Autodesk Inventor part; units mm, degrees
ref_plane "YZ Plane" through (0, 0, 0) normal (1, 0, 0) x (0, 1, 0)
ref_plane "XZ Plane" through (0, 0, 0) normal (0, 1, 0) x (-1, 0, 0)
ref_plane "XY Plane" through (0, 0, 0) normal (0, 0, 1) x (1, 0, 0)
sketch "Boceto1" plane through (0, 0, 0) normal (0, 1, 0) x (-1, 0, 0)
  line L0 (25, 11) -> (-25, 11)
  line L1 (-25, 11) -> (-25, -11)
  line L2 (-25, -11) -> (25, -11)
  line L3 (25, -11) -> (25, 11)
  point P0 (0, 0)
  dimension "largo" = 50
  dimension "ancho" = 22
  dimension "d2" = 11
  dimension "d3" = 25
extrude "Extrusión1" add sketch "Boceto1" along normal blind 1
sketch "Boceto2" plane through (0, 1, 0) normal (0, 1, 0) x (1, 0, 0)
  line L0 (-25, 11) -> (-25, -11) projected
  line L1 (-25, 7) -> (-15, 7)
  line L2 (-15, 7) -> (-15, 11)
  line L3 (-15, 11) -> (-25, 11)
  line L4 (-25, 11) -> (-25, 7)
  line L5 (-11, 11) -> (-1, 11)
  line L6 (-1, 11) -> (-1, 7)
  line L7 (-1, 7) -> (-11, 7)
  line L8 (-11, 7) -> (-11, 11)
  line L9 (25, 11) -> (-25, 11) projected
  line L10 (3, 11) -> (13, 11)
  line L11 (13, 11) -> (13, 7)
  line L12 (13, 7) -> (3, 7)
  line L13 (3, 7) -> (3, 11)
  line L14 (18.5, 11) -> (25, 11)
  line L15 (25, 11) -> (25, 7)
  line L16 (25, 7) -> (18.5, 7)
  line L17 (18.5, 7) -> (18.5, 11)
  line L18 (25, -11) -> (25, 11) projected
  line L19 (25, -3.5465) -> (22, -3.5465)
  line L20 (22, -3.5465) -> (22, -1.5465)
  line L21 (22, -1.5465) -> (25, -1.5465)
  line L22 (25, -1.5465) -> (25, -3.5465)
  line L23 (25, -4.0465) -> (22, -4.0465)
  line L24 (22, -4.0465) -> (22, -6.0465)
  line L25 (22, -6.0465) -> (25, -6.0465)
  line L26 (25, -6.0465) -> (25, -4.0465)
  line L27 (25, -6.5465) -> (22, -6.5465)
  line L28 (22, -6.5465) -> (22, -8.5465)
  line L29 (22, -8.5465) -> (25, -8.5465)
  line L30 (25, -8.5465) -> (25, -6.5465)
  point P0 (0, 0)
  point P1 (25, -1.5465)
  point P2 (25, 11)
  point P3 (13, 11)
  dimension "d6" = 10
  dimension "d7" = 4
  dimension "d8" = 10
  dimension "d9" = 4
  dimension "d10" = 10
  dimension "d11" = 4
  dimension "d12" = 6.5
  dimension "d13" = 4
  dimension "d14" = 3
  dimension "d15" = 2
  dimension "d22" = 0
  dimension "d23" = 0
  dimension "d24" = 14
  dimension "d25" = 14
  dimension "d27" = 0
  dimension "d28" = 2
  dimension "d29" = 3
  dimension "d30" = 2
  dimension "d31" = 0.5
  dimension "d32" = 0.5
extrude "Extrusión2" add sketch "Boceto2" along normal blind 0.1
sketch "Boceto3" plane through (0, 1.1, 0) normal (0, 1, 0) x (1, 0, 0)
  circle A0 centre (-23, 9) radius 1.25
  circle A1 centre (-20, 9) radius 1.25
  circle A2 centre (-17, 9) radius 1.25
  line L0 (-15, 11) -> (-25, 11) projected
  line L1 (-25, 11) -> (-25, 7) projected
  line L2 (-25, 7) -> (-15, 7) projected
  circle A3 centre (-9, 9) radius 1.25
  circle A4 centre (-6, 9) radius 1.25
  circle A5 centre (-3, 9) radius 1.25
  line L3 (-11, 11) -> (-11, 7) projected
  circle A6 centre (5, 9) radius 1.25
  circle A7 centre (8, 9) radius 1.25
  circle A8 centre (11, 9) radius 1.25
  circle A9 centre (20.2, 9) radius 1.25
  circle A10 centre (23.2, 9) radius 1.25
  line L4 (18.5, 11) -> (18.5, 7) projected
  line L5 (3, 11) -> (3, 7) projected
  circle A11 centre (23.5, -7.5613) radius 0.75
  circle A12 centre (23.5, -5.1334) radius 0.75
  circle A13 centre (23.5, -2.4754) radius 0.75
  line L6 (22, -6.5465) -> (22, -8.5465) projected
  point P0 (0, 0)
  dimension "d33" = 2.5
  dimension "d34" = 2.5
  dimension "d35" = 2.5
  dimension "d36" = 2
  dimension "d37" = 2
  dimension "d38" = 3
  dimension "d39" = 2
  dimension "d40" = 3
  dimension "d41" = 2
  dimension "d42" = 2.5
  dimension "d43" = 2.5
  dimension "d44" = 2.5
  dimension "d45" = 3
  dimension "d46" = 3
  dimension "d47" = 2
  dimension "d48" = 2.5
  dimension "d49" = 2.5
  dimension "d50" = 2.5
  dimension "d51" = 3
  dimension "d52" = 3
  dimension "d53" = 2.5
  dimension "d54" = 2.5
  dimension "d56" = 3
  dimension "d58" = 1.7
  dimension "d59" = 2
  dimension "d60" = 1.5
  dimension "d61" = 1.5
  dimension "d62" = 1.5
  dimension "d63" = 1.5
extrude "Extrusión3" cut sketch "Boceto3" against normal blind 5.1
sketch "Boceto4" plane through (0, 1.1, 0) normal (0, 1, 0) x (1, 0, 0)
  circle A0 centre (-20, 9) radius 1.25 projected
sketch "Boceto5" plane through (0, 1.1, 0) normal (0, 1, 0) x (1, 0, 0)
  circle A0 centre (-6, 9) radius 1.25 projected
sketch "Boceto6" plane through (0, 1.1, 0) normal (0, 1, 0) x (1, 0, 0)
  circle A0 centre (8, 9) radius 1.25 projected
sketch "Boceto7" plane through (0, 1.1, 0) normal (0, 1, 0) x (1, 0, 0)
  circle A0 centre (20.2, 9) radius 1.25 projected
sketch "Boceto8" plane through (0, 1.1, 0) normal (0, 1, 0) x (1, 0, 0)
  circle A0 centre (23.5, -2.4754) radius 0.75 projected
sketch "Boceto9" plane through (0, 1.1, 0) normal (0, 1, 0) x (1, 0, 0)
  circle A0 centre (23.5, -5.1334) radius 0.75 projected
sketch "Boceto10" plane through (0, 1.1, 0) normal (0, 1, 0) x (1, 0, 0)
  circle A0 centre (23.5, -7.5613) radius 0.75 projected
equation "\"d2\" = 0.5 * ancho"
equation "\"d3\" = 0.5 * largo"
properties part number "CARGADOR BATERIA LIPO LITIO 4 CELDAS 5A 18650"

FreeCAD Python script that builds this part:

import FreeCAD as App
import Part
import Sketcher
Q = App.Units.Quantity

doc = App.newDocument("Part")
params = doc.addObject("Spreadsheet::Sheet", "Params")
for row, (alias, value) in enumerate([
    ("sketch1_width", "50 mm"),
    ("sketch1_height", "22 mm"),
    ("pad1_length", "1 mm"),
    ("sketch2_width", "10 mm"),
    ("sketch2_width2", "3 mm"),
    ("sketch2_height", "4 mm"),
    ("sketch2_height2", "2 mm"),
    ("sketch2_width3", "6.5 mm"),
    ("pad2_length", "0.1 mm"),
    ("sketch3_diameter", "2.5 mm"),
    ("sketch3_diameter2", "1.5 mm"),
    ("pocket1_length", "5.1 mm"),
], start=1):
    params.set(f"A{row}", alias)
    params.set(f"B{row}", "=" + value)
    params.setAlias(f"B{row}", alias)

body = doc.addObject("PartDesign::Body", "Body")

# Sketch on XZ plane
sketch1 = body.newObject("Sketcher::SketchObject", "Sketch")
sketch1.AttachmentSupport = (doc.getObject("XZ_Plane"), [""])
sketch1.MapMode = "FlatFace"
sketch1.addGeometry([
    Part.LineSegment(App.Vector(-25, -11, 0), App.Vector(-25, 11, 0)),
    Part.LineSegment(App.Vector(-25, 11, 0), App.Vector(25, 11, 0)),
    Part.LineSegment(App.Vector(25, 11, 0), App.Vector(25, -11, 0)),
    Part.LineSegment(App.Vector(25, -11, 0), App.Vector(-25, -11, 0)),
], False)
sketch1.addConstraint([
    Sketcher.Constraint("Coincident", 0, 2, 1, 1),
    Sketcher.Constraint("Coincident", 1, 2, 2, 1),
    Sketcher.Constraint("Coincident", 2, 2, 3, 1),
    Sketcher.Constraint("Coincident", 3, 2, 0, 1),
    Sketcher.Constraint("Vertical", 0),
    Sketcher.Constraint("Horizontal", 1),
    Sketcher.Constraint("Vertical", 2),
    Sketcher.Constraint("Horizontal", 3),
    Sketcher.Constraint("Symmetric", 0, 2, 2, 2, -1, 1),
    Sketcher.Constraint("DistanceX", 1, 1, 1, 2, Q("50 mm")),
    Sketcher.Constraint("DistanceY", 0, 1, 0, 2, Q("22 mm")),
])
sketch1.setExpression("Constraints[9]", "Params.sketch1_width")
sketch1.setExpression("Constraints[10]", "Params.sketch1_height")
pad1 = body.newObject("PartDesign::Pad", "Pad")
pad1.Profile = sketch1
pad1.setExpression("Length", "Params.pad1_length")
pad1.Reversed = True

# Sketch on XZ plane
sketch2 = body.newObject("Sketcher::SketchObject", "Sketch001")
sketch2.AttachmentSupport = (doc.getObject("XZ_Plane"), [""])
sketch2.MapMode = "FlatFace"
sketch2.AttachmentOffset = App.Placement(App.Vector(0, 0, -1), App.Rotation())
sketch2.addGeometry([
    Part.LineSegment(App.Vector(-15, -11, 0), App.Vector(-25, -11, 0)),  # 0
    Part.LineSegment(App.Vector(-25, -11, 0), App.Vector(-25, -7, 0)),  # 1
    Part.LineSegment(App.Vector(-25, -7, 0), App.Vector(-15, -7, 0)),  # 2
    Part.LineSegment(App.Vector(-15, -7, 0), App.Vector(-15, -11, 0)),  # 3
    Part.LineSegment(App.Vector(25, 8.5, 0), App.Vector(25, 6.5, 0)),  # 4
    Part.LineSegment(App.Vector(25, 6.5, 0), App.Vector(22, 6.5, 0)),  # 5
    Part.LineSegment(App.Vector(22, 6.5, 0), App.Vector(22, 8.5, 0)),  # 6
    Part.LineSegment(App.Vector(22, 8.5, 0), App.Vector(25, 8.5, 0)),  # 7
    Part.LineSegment(App.Vector(25, 6, 0), App.Vector(25, 4, 0)),  # 8
    Part.LineSegment(App.Vector(25, 4, 0), App.Vector(22, 4, 0)),  # 9
    Part.LineSegment(App.Vector(22, 4, 0), App.Vector(22, 6, 0)),  # 10
    Part.LineSegment(App.Vector(22, 6, 0), App.Vector(25, 6, 0)),  # 11
    Part.LineSegment(App.Vector(25, 3.5, 0), App.Vector(25, 1.5, 0)),  # 12
    Part.LineSegment(App.Vector(25, 1.5, 0), App.Vector(22, 1.5, 0)),  # 13
    Part.LineSegment(App.Vector(22, 1.5, 0), App.Vector(22, 3.5, 0)),  # 14
    Part.LineSegment(App.Vector(22, 3.5, 0), App.Vector(25, 3.5, 0)),  # 15
    Part.LineSegment(App.Vector(25, -11, 0), App.Vector(18.5, -11, 0)),  # 16
    Part.LineSegment(App.Vector(18.5, -11, 0), App.Vector(18.5, -7, 0)),  # 17
    Part.LineSegment(App.Vector(18.5, -7, 0), App.Vector(25, -7, 0)),  # 18
    Part.LineSegment(App.Vector(25, -7, 0), App.Vector(25, -11, 0)),  # 19
    Part.LineSegment(App.Vector(13, -11, 0), App.Vector(3, -11, 0)),  # 20
    Part.LineSegment(App.Vector(3, -11, 0), App.Vector(3, -7, 0)),  # 21
    Part.LineSegment(App.Vector(3, -7, 0), App.Vector(13, -7, 0)),  # 22
    Part.LineSegment(App.Vector(13, -7, 0), App.Vector(13, -11, 0)),  # 23
    Part.LineSegment(App.Vector(-1, -11, 0), App.Vector(-11, -11, 0)),  # 24
    Part.LineSegment(App.Vector(-11, -11, 0), App.Vector(-11, -7, 0)),  # 25
    Part.LineSegment(App.Vector(-11, -7, 0), App.Vector(-1, -7, 0)),  # 26
    Part.LineSegment(App.Vector(-1, -7, 0), App.Vector(-1, -11, 0)),  # 27
], False)
sketch2.addConstraint([
    Sketcher.Constraint("Coincident", 0, 2, 1, 1),
    Sketcher.Constraint("Coincident", 1, 2, 2, 1),
    Sketcher.Constraint("Coincident", 2, 2, 3, 1),
    Sketcher.Constraint("Coincident", 3, 2, 0, 1),
    Sketcher.Constraint("Coincident", 4, 2, 5, 1),
    Sketcher.Constraint("Coincident", 5, 2, 6, 1),
    Sketcher.Constraint("Coincident", 6, 2, 7, 1),
    Sketcher.Constraint("Coincident", 7, 2, 4, 1),
    Sketcher.Constraint("Coincident", 8, 2, 9, 1),
    Sketcher.Constraint("Coincident", 9, 2, 10, 1),
    Sketcher.Constraint("Coincident", 10, 2, 11, 1),
    Sketcher.Constraint("Coincident", 11, 2, 8, 1),
    Sketcher.Constraint("Coincident", 12, 2, 13, 1),
    Sketcher.Constraint("Coincident", 13, 2, 14, 1),
    Sketcher.Constraint("Coincident", 14, 2, 15, 1),
    Sketcher.Constraint("Coincident", 15, 2, 12, 1),
    Sketcher.Constraint("Coincident", 16, 2, 17, 1),
    Sketcher.Constraint("Coincident", 17, 2, 18, 1),
    Sketcher.Constraint("Coincident", 18, 2, 19, 1),
    Sketcher.Constraint("Coincident", 19, 2, 16, 1),
    Sketcher.Constraint("Coincident", 20, 2, 21, 1),
    Sketcher.Constraint("Coincident", 21, 2, 22, 1),
    Sketcher.Constraint("Coincident", 22, 2, 23, 1),
    Sketcher.Constraint("Coincident", 23, 2, 20, 1),
    Sketcher.Constraint("Coincident", 24, 2, 25, 1),
    Sketcher.Constraint("Coincident", 25, 2, 26, 1),
    Sketcher.Constraint("Coincident", 26, 2, 27, 1),
    Sketcher.Constraint("Coincident", 27, 2, 24, 1),
    Sketcher.Constraint("Horizontal", 0),
    Sketcher.Constraint("Vertical", 1),
    Sketcher.Constraint("Horizontal", 2),
    Sketcher.Constraint("Vertical", 3),
    Sketcher.Constraint("Vertical", 4),
    Sketcher.Constraint("Horizontal", 5),
    Sketcher.Constraint("Vertical", 6),
    Sketcher.Constraint("Horizontal", 7),
    Sketcher.Constraint("Vertical", 8),
    Sketcher.Constraint("Horizontal", 9),
    Sketcher.Constraint("Vertical", 10),
    Sketcher.Constraint("Horizontal", 11),
    Sketcher.Constraint("Vertical", 12),
    Sketcher.Constraint("Horizontal", 13),
    Sketcher.Constraint("Vertical", 14),
    Sketcher.Constraint("Horizontal", 15),
    Sketcher.Constraint("Horizontal", 16),
    Sketcher.Constraint("Vertical", 17),
    Sketcher.Constraint("Horizontal", 18),
    Sketcher.Constraint("Vertical", 19),
    Sketcher.Constraint("Horizontal", 20),
    Sketcher.Constraint("Vertical", 21),
    Sketcher.Constraint("Horizontal", 22),
    Sketcher.Constraint("Vertical", 23),
    Sketcher.Constraint("Horizontal", 24),
    Sketcher.Constraint("Vertical", 25),
    Sketcher.Constraint("Horizontal", 26),
    Sketcher.Constraint("Vertical", 27),
    Sketcher.Constraint("Symmetric", 1, 2, 18, 2, -2),
    Sketcher.Constraint("Horizontal", 3, 2, 16, 2),
    Sketcher.Constraint("Horizontal", 19, 2, 20, 2),
    Sketcher.Constraint("Horizontal", 18, 2, 21, 2),
    Sketcher.Constraint("Horizontal", 23, 2, 24, 2),
    Sketcher.Constraint("Horizontal", 22, 2, 25, 2),
    Sketcher.Constraint("Vertical", 7, 2, 8, 2),
    Sketcher.Constraint("Vertical", 6, 2, 9, 2),
    Sketcher.Constraint("Vertical", 11, 2, 12, 2),
    Sketcher.Constraint("Vertical", 10, 2, 13, 2),
    Sketcher.Constraint("Vertical", 15, 2, 18, 2),
    Sketcher.Constraint("Equal", 2, 20),
    Sketcher.Constraint("Equal", 22, 24),
    Sketcher.Constraint("Equal", 6, 8),
    Sketcher.Constraint("Equal", 10, 12),
    Sketcher.Constraint("DistanceX", 0, 2, 0, 1, Q("10 mm")),
    Sketcher.Constraint("DistanceX", 5, 2, 5, 1, Q("3 mm")),
    Sketcher.Constraint("DistanceY", 1, 1, 1, 2, Q("4 mm")),
    Sketcher.Constraint("DistanceY", 4, 2, 4, 1, Q("2 mm")),
    Sketcher.Constraint("DistanceX", 16, 2, 16, 1, Q("6.5 mm")),
    Sketcher.Constraint("DistanceX", -1, 1, 20, 2, Q("3 mm")),
    Sketcher.Constraint("DistanceY", 14, 2, 5, 2, Q("3 mm")),
    Sketcher.Constraint("DistanceX", 3, 2, 24, 2, Q("4 mm")),
    Sketcher.Constraint("DistanceX", 24, 2, 20, 2, Q("14 mm")),
    Sketcher.Constraint("DistanceY", 10, 2, 5, 2, Q("0.5 mm")),
    Sketcher.Constraint("DistanceY", 0, 2, -1, 1, Q("11 mm")),
    Sketcher.Constraint("DistanceY", -1, 1, 4, 2, Q("6.5465 mm")),
])
sketch2.setExpression("Constraints[71]", "Params.sketch2_width")
sketch2.setExpression("Constraints[72]", "Params.sketch2_width2")
sketch2.setExpression("Constraints[73]", "Params.sketch2_height")
sketch2.setExpression("Constraints[74]", "Params.sketch2_height2")
sketch2.setExpression("Constraints[75]", "Params.sketch2_width3")
pad2 = body.newObject("PartDesign::Pad", "Pad001")
pad2.Profile = sketch2
pad2.setExpression("Length", "Params.pad2_length")
pad2.Reversed = True

# Sketch on XZ plane
sketch3 = body.newObject("Sketcher::SketchObject", "Sketch002")
sketch3.AttachmentSupport = (doc.getObject("XZ_Plane"), [""])
sketch3.MapMode = "FlatFace"
sketch3.AttachmentOffset = App.Placement(App.Vector(0, 0, -1.1), App.Rotation())
sketch3.addGeometry([
    Part.Circle(App.Vector(-23, -9, 0), App.Vector(0, 0, 1), 1.2),  # 0
    Part.Circle(App.Vector(-20, -9, 0), App.Vector(0, 0, 1), 1.2),  # 1
    Part.Circle(App.Vector(-17, -9, 0), App.Vector(0, 0, 1), 1.2),  # 2
    Part.Circle(App.Vector(-9, -9, 0), App.Vector(0, 0, 1), 1.2),  # 3
    Part.Circle(App.Vector(-6, -9, 0), App.Vector(0, 0, 1), 1.2),  # 4
    Part.Circle(App.Vector(-3, -9, 0), App.Vector(0, 0, 1), 1.2),  # 5
    Part.Circle(App.Vector(5, -9, 0), App.Vector(0, 0, 1), 1.2),  # 6
    Part.Circle(App.Vector(8, -9, 0), App.Vector(0, 0, 1), 1.2),  # 7
    Part.Circle(App.Vector(11, -9, 0), App.Vector(0, 0, 1), 1.2),  # 8
    Part.Circle(App.Vector(20.2, -9, 0), App.Vector(0, 0, 1), 1.2),  # 9
    Part.Circle(App.Vector(23.2, -9, 0), App.Vector(0, 0, 1), 1.2),  # 10
    Part.Circle(App.Vector(23.5, 7.6, 0), App.Vector(0, 0, 1), 0.8),  # 11
    Part.Circle(App.Vector(23.5, 5.1, 0), App.Vector(0, 0, 1), 0.8),  # 12
    Part.Circle(App.Vector(23.5, 2.5, 0), App.Vector(0, 0, 1), 0.8),  # 13
], False)
sketch3.addConstraint([
    Sketcher.Constraint("Equal", 0, 1),
    Sketcher.Constraint("Equal", 1, 2),
    Sketcher.Constraint("Equal", 2, 3),
    Sketcher.Constraint("Equal", 3, 4),
    Sketcher.Constraint("Equal", 4, 5),
    Sketcher.Constraint("Equal", 5, 6),
    Sketcher.Constraint("Equal", 6, 7),
    Sketcher.Constraint("Equal", 7, 8),
    Sketcher.Constraint("Equal", 8, 9),
    Sketcher.Constraint("Equal", 9, 10),
    Sketcher.Constraint("Equal", 11, 12),
    Sketcher.Constraint("Equal", 12, 13),
    Sketcher.Constraint("Horizontal", 0, 3, 1, 3),
    Sketcher.Constraint("Horizontal", 1, 3, 2, 3),
    Sketcher.Constraint("Horizontal", 2, 3, 3, 3),
    Sketcher.Constraint("Horizontal", 3, 3, 4, 3),
    Sketcher.Constraint("Horizontal", 4, 3, 5, 3),
    Sketcher.Constraint("Horizontal", 5, 3, 6, 3),
    Sketcher.Constraint("Horizontal", 6, 3, 7, 3),
    Sketcher.Constraint("Horizontal", 7, 3, 8, 3),
    Sketcher.Constraint("Horizontal", 8, 3, 9, 3),
    Sketcher.Constraint("Horizontal", 9, 3, 10, 3),
    Sketcher.Constraint("Vertical", 11, 3, 12, 3),
    Sketcher.Constraint("Vertical", 12, 3, 13, 3),
    Sketcher.Constraint("Diameter", 0, Q("2.5 mm")),
    Sketcher.Constraint("Diameter", 11, Q("1.5 mm")),
    Sketcher.Constraint("DistanceX", 5, 3, -1, 1, Q("3 mm")),
    Sketcher.Constraint("DistanceX", 0, 3, 1, 3, Q("3 mm")),
    Sketcher.Constraint("DistanceX", 1, 3, 2, 3, Q("3 mm")),
    Sketcher.Constraint("DistanceX", 3, 3, 4, 3, Q("3 mm")),
    Sketcher.Constraint("DistanceX", 4, 3, 5, 3, Q("3 mm")),
    Sketcher.Constraint("DistanceX", 6, 3, 7, 3, Q("3 mm")),
    Sketcher.Constraint("DistanceX", 7, 3, 8, 3, Q("3 mm")),
    Sketcher.Constraint("DistanceX", 9, 3, 10, 3, Q("3 mm")),
    Sketcher.Constraint("DistanceX", 0, 3, -1, 1, Q("23 mm")),
    Sketcher.Constraint("DistanceY", 0, 3, -1, 1, Q("9 mm")),
    Sketcher.Constraint("DistanceX", -1, 1, 6, 3, Q("5 mm")),
    Sketcher.Constraint("DistanceX", -1, 1, 9, 3, Q("20.2 mm")),
    Sketcher.Constraint("DistanceX", -1, 1, 11, 3, Q("23.5 mm")),
    Sketcher.Constraint("DistanceY", 12, 3, 11, 3, Q("2.428 mm")),
    Sketcher.Constraint("DistanceY", 13, 3, 12, 3, Q("2.658 mm")),
    Sketcher.Constraint("DistanceY", -1, 1, 11, 3, Q("7.5613 mm")),
])
sketch3.setExpression("Constraints[24]", "Params.sketch3_diameter")
sketch3.setExpression("Constraints[25]", "Params.sketch3_diameter2")
pocket1 = body.newObject("PartDesign::Pocket", "Pocket")
pocket1.Profile = sketch3
pocket1.setExpression("Length", "Params.pocket1_length")
pocket1.Reversed = True

doc.recompute()
